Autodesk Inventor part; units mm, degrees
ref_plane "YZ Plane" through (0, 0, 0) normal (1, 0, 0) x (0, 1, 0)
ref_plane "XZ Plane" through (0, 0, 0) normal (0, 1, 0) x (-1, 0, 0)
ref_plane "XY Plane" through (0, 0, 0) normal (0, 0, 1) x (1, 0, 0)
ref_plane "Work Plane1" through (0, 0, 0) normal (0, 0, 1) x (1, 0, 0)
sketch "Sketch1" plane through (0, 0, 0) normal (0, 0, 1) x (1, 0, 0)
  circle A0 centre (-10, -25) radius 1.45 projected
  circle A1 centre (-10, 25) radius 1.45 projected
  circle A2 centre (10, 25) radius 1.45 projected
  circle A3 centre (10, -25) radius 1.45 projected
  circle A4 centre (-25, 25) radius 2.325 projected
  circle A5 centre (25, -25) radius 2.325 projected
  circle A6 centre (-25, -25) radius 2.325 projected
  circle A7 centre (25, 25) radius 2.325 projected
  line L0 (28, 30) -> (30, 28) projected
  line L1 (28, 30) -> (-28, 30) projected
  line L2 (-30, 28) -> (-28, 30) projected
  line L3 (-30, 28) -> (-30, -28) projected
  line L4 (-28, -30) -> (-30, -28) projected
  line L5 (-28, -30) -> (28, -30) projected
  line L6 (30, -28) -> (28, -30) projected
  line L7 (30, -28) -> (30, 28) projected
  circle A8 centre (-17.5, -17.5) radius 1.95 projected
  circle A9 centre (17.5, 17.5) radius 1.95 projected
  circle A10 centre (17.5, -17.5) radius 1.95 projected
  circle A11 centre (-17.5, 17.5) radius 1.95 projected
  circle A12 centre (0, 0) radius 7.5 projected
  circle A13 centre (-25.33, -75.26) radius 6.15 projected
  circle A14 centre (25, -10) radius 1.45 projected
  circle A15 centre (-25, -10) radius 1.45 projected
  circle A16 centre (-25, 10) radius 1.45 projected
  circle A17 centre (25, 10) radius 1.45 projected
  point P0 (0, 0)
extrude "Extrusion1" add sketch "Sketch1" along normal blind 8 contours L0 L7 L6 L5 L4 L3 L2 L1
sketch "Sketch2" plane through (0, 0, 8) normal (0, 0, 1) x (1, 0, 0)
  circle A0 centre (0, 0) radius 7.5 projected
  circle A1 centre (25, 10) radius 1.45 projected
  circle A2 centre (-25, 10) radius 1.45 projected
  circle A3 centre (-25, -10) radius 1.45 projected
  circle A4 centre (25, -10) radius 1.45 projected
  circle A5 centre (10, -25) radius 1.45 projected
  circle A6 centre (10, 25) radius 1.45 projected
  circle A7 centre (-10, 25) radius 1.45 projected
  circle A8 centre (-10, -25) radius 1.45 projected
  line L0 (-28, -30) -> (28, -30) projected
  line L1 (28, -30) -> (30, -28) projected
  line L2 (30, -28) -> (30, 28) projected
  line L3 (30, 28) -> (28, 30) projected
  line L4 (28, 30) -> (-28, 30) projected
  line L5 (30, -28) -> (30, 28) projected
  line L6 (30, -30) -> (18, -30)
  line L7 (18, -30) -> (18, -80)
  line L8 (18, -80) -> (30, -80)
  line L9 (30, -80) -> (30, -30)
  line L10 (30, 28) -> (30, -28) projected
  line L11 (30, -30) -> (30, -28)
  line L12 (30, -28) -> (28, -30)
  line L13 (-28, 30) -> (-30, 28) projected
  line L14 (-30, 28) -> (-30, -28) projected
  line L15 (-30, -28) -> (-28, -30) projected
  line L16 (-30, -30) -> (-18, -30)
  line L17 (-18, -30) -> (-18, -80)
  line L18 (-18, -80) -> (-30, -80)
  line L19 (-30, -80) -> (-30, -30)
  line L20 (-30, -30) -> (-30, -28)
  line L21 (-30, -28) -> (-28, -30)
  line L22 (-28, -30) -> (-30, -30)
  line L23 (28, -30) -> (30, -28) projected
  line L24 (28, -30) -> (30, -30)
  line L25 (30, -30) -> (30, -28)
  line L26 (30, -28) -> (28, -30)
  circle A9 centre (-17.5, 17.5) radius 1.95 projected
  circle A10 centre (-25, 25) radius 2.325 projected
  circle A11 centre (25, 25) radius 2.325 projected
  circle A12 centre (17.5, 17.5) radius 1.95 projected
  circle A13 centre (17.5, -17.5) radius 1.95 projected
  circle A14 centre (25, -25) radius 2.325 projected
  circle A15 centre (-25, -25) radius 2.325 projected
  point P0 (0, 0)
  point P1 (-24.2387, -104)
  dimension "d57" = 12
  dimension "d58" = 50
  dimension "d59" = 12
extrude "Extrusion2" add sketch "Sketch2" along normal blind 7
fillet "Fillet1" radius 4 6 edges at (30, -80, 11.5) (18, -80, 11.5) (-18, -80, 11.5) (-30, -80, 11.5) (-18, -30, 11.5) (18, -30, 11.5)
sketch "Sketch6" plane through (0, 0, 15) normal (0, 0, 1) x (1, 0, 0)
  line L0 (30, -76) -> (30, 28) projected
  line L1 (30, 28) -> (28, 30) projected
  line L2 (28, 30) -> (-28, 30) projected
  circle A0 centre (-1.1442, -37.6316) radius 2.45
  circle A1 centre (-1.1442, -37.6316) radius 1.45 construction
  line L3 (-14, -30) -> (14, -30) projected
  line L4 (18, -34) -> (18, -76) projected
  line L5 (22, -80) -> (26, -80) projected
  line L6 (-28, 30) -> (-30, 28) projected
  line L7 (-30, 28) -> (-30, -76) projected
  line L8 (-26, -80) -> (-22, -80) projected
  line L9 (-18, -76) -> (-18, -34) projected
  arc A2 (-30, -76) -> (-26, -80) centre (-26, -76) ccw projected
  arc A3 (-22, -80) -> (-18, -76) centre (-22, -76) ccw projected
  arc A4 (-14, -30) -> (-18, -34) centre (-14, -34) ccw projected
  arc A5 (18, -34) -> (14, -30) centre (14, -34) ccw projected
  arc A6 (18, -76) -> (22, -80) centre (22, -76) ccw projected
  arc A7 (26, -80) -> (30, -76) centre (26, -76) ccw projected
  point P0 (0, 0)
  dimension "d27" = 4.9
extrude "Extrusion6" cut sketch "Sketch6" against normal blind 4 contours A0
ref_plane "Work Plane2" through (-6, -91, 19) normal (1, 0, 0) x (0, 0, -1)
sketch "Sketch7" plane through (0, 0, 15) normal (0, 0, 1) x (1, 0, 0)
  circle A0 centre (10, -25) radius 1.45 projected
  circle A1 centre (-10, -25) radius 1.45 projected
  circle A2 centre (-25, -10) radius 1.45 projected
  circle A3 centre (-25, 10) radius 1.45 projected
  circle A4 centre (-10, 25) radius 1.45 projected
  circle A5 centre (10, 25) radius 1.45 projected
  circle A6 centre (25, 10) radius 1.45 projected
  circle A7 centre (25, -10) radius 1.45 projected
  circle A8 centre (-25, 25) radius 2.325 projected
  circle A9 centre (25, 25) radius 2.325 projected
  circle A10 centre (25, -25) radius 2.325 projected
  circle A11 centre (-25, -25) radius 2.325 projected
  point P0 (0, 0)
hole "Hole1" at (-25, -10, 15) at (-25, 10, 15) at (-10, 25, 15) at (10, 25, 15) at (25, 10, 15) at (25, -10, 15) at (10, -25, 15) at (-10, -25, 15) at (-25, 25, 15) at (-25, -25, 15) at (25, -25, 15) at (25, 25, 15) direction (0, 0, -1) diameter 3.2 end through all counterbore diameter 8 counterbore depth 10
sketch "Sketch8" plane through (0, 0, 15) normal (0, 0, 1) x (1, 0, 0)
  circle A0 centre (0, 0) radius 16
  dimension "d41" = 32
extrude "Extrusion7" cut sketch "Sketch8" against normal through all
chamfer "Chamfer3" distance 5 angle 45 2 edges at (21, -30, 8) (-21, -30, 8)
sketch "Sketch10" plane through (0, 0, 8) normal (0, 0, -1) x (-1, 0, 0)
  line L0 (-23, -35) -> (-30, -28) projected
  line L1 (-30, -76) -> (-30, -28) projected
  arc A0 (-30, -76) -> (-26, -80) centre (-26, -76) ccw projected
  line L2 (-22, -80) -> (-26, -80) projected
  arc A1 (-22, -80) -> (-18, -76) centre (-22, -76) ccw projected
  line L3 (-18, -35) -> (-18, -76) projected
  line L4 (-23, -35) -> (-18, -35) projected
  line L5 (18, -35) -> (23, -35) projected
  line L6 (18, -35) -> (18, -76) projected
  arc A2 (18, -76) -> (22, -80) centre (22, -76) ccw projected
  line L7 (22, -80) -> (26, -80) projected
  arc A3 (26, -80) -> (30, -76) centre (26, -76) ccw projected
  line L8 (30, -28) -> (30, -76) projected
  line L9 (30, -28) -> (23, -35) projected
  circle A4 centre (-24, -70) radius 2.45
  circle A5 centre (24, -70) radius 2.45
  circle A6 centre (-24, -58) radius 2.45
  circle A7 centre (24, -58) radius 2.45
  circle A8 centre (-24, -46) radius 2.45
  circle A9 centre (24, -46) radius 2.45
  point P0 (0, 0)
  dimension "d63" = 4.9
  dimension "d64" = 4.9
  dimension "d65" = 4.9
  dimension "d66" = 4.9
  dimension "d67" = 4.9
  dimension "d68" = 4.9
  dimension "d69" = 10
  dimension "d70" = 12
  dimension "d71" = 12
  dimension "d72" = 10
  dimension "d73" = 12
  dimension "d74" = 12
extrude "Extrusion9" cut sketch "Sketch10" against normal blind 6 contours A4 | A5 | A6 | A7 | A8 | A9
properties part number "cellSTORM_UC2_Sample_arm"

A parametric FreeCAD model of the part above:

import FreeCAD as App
import Part
import Sketcher


def edges_at(feature, points):
    """Names of the edges that pass closest to the given points."""
    edges = feature.Shape.Edges
    near = lambda p: min(range(len(edges)), key=lambda i: edges[i].distToShape(Part.Vertex(*p))[0])
    return sorted({f"Edge{near(p) + 1}" for p in points})


def add_polygon(sketch, points):
    """Adds a closed chain of lines whose ends are joined by coincident constraints."""
    first, n = sketch.GeometryCount, len(points)
    for a, b in zip(points, points[1:] + points[:1]):
        sketch.addGeometry(Part.LineSegment(App.Vector(*a, 0), App.Vector(*b, 0)), False)
    for i in range(n):
        sketch.addConstraint(Sketcher.Constraint("Coincident", first + i, 2, first + (i + 1) % n, 1))

doc = App.newDocument("Part")
body = doc.addObject("PartDesign::Body", "Body")

# Sketch on XY plane
sketch1 = body.newObject("Sketcher::SketchObject", "Sketch")
sketch1.AttachmentSupport = (doc.getObject("XY_Plane"), [""])
sketch1.MapMode = "FlatFace"
add_polygon(sketch1, [(30, 28), (28, 30), (-28, 30), (-30, 28), (-30, -28), (-28, -30), (28, -30), (30, -28)])  # lines 0-7
sketch1.addGeometry(Part.Circle(App.Vector(-25, -25, 0), App.Vector(0, 0, 1), 2.325), False)  # 8
sketch1.addGeometry(Part.Circle(App.Vector(-17.5, -17.5, 0), App.Vector(0, 0, 1), 1.95), False)  # 9
sketch1.addGeometry(Part.Circle(App.Vector(-25, -10, 0), App.Vector(0, 0, 1), 1.45), False)  # 10
sketch1.addGeometry(Part.Circle(App.Vector(-10, -25, 0), App.Vector(0, 0, 1), 1.45), False)  # 11
sketch1.addGeometry(Part.Circle(App.Vector(-25, 10, 0), App.Vector(0, 0, 1), 1.45), False)  # 12
sketch1.addGeometry(Part.Circle(App.Vector(-25, 25, 0), App.Vector(0, 0, 1), 2.325), False)  # 13
sketch1.addGeometry(Part.Circle(App.Vector(-17.5, 17.5, 0), App.Vector(0, 0, 1), 1.95), False)  # 14
sketch1.addGeometry(Part.Circle(App.Vector(-10, 25, 0), App.Vector(0, 0, 1), 1.45), False)  # 15
sketch1.addGeometry(Part.Circle(App.Vector(10, -25, 0), App.Vector(0, 0, 1), 1.45), False)  # 16
sketch1.addGeometry(Part.Circle(App.Vector(0, 0, 0), App.Vector(0, 0, 1), 7.5), False)  # 17
sketch1.addGeometry(Part.Circle(App.Vector(17.5, -17.5, 0), App.Vector(0, 0, 1), 1.95), False)  # 18
sketch1.addGeometry(Part.Circle(App.Vector(25, -25, 0), App.Vector(0, 0, 1), 2.325), False)  # 19
sketch1.addGeometry(Part.Circle(App.Vector(25, -10, 0), App.Vector(0, 0, 1), 1.45), False)  # 20
sketch1.addGeometry(Part.Circle(App.Vector(10, 25, 0), App.Vector(0, 0, 1), 1.45), False)  # 21
sketch1.addGeometry(Part.Circle(App.Vector(25, 10, 0), App.Vector(0, 0, 1), 1.45), False)  # 22
sketch1.addGeometry(Part.Circle(App.Vector(17.5, 17.5, 0), App.Vector(0, 0, 1), 1.95), False)  # 23
sketch1.addGeometry(Part.Circle(App.Vector(25, 25, 0), App.Vector(0, 0, 1), 2.325), False)  # 24
sketch1.addConstraint([
    Sketcher.Constraint("Horizontal", 1),
    Sketcher.Constraint("Vertical", 3),
    Sketcher.Constraint("Horizontal", 5),
    Sketcher.Constraint("Vertical", 7),
    Sketcher.Constraint("Coincident", 17, 3, -1, 1),
    Sketcher.Constraint("Equal", 10, 11),
    Sketcher.Constraint("Equal", 11, 12),
    Sketcher.Constraint("Equal", 8, 13),
    Sketcher.Constraint("Equal", 9, 14),
    Sketcher.Constraint("Equal", 12, 15),
    Sketcher.Constraint("Equal", 15, 16),
    Sketcher.Constraint("Equal", 14, 18),
    Sketcher.Constraint("Equal", 13, 19),
    Sketcher.Constraint("Equal", 16, 20),
    Sketcher.Constraint("Equal", 20, 21),
    Sketcher.Constraint("Equal", 21, 22),
    Sketcher.Constraint("Equal", 18, 23),
    Sketcher.Constraint("Equal", 19, 24),
    Sketcher.Constraint("Symmetric", 15, 3, 16, 3, -1, 1),
    Sketcher.Constraint("Symmetric", 14, 3, 18, 3, -1, 1),
    Sketcher.Constraint("Symmetric", 13, 3, 19, 3, -1, 1),
    Sketcher.Constraint("Symmetric", 12, 3, 20, 3, -1, 1),
    Sketcher.Constraint("Symmetric", 11, 3, 21, 3, -1, 1),
    Sketcher.Constraint("Symmetric", 10, 3, 22, 3, -1, 1),
    Sketcher.Constraint("Symmetric", 9, 3, 23, 3, -1, 1),
    Sketcher.Constraint("Symmetric", 8, 3, 24, 3, -1, 1),
    Sketcher.Constraint("Symmetric", 0, 2, 4, 2, -1, 1),
    Sketcher.Constraint("Symmetric", 2, 2, 6, 2, -1, 1),
    Sketcher.Constraint("Symmetric", 11, 3, 16, 3, -2),
    Sketcher.Constraint("Symmetric", 9, 3, 18, 3, -2),
    Sketcher.Constraint("Symmetric", 8, 3, 19, 3, -2),
    Sketcher.Constraint("Symmetric", 10, 3, 20, 3, -2),
    Sketcher.Constraint("Perpendicular", 0, 2),
    Sketcher.Constraint("Perpendicular", 2, 4),
    Sketcher.Constraint("Perpendicular", 4, 6),
    Sketcher.Constraint("Horizontal", 8, 3, 11, 3),
    Sketcher.Constraint("Horizontal", 3, 2, 6, 2),
    Sketcher.Constraint("Vertical", 8, 3, 10, 3),
    Sketcher.Constraint("Vertical", 1, 2, 4, 2),
    Sketcher.Constraint("Equal", 5, 3),
    Sketcher.Constraint("Diameter", 17, 15.0),
    Sketcher.Constraint("Diameter", 9, 3.9),
    Sketcher.Constraint("Diameter", 10, 2.9),
    Sketcher.Constraint("Diameter", 8, 4.65),
    Sketcher.Constraint("DistanceX", 1, 2, 1, 1, 56.0),
    Sketcher.Constraint("DistanceX", 8, 3, -1, 1, 25.0),
    Sketcher.Constraint("DistanceY", 8, 3, -1, 1, 25.0),
    Sketcher.Constraint("DistanceY", 10, 3, -1, 1, 10.0),
    Sketcher.Constraint("DistanceX", 11, 3, -1, 1, 10.0),
    Sketcher.Constraint("DistanceY", -1, 1, 0, 2, 30.0),
    Sketcher.Constraint("DistanceY", 9, 3, 14, 3, 35.0),
    Sketcher.Constraint("DistanceX", 9, 3, 18, 3, 35.0),
])
pad1 = body.newObject("PartDesign::Pad", "Pad")
pad1.Profile = sketch1
pad1.Length = 8

# Sketch on XY plane
sketch2 = body.newObject("Sketcher::SketchObject", "Sketch001")
sketch2.AttachmentSupport = (doc.getObject("XY_Plane"), [""])
sketch2.MapMode = "FlatFace"
sketch2.AttachmentOffset = App.Placement(App.Vector(0, 0, 8), App.Rotation())
add_polygon(sketch2, [(-30, 28), (-30, -80), (-18, -80), (-18, -30), (18, -30), (18, -80), (30, -80), (30, 28), (28, 30), (-28, 30)])  # lines 0-9
sketch2.addGeometry(Part.Circle(App.Vector(-25, -25, 0), App.Vector(0, 0, 1), 2.325), False)  # 10
sketch2.addGeometry(Part.Circle(App.Vector(-25, -10, 0), App.Vector(0, 0, 1), 1.45), False)  # 11
sketch2.addGeometry(Part.Circle(App.Vector(-10, -25, 0), App.Vector(0, 0, 1), 1.45), False)  # 12
sketch2.addGeometry(Part.Circle(App.Vector(-25, 10, 0), App.Vector(0, 0, 1), 1.45), False)  # 13
sketch2.addGeometry(Part.Circle(App.Vector(-25, 25, 0), App.Vector(0, 0, 1), 2.325), False)  # 14
sketch2.addGeometry(Part.Circle(App.Vector(-17.5, 17.5, 0), App.Vector(0, 0, 1), 1.95), False)  # 15
sketch2.addGeometry(Part.Circle(App.Vector(-10, 25, 0), App.Vector(0, 0, 1), 1.45), False)  # 16
sketch2.addGeometry(Part.Circle(App.Vector(10, -25, 0), App.Vector(0, 0, 1), 1.45), False)  # 17
sketch2.addGeometry(Part.Circle(App.Vector(0, 0, 0), App.Vector(0, 0, 1), 7.5), False)  # 18
sketch2.addGeometry(Part.Circle(App.Vector(17.5, -17.5, 0), App.Vector(0, 0, 1), 1.95), False)  # 19
sketch2.addGeometry(Part.Circle(App.Vector(25, -25, 0), App.Vector(0, 0, 1), 2.325), False)  # 20
sketch2.addGeometry(Part.Circle(App.Vector(25, -10, 0), App.Vector(0, 0, 1), 1.45), False)  # 21
sketch2.addGeometry(Part.Circle(App.Vector(10, 25, 0), App.Vector(0, 0, 1), 1.45), False)  # 22
sketch2.addGeometry(Part.Circle(App.Vector(25, 10, 0), App.Vector(0, 0, 1), 1.45), False)  # 23
sketch2.addGeometry(Part.Circle(App.Vector(17.5, 17.5, 0), App.Vector(0, 0, 1), 1.95), False)  # 24
sketch2.addGeometry(Part.Circle(App.Vector(25, 25, 0), App.Vector(0, 0, 1), 2.325), False)  # 25
sketch2.addConstraint([
    Sketcher.Constraint("Vertical", 0),
    Sketcher.Constraint("Horizontal", 1),
    Sketcher.Constraint("Vertical", 2),
    Sketcher.Constraint("Horizontal", 3),
    Sketcher.Constraint("Vertical", 4),
    Sketcher.Constraint("Horizontal", 5),
    Sketcher.Constraint("Vertical", 6),
    Sketcher.Constraint("Horizontal", 8),
    Sketcher.Constraint("Coincident", 18, 3, -1, 1),
    Sketcher.Constraint("Equal", 11, 12),
    Sketcher.Constraint("Equal", 12, 13),
    Sketcher.Constraint("Equal", 10, 14),
    Sketcher.Constraint("Equal", 13, 16),
    Sketcher.Constraint("Equal", 16, 17),
    Sketcher.Constraint("Equal", 15, 19),
    Sketcher.Constraint("Equal", 14, 20),
    Sketcher.Constraint("Equal", 17, 21),
    Sketcher.Constraint("Equal", 21, 22),
    Sketcher.Constraint("Equal", 22, 23),
    Sketcher.Constraint("Equal", 19, 24),
    Sketcher.Constraint("Equal", 20, 25),
    Sketcher.Constraint("Symmetric", 16, 3, 17, 3, -1, 1),
    Sketcher.Constraint("Symmetric", 15, 3, 19, 3, -1, 1),
    Sketcher.Constraint("Symmetric", 14, 3, 20, 3, -1, 1),
    Sketcher.Constraint("Symmetric", 13, 3, 21, 3, -1, 1),
    Sketcher.Constraint("Symmetric", 12, 3, 22, 3, -1, 1),
    Sketcher.Constraint("Symmetric", 11, 3, 23, 3, -1, 1),
    Sketcher.Constraint("Symmetric", 10, 3, 25, 3, -1, 1),
    Sketcher.Constraint("Symmetric", 12, 3, 17, 3, -2),
    Sketcher.Constraint("Symmetric", 10, 3, 20, 3, -2),
    Sketcher.Constraint("Symmetric", 11, 3, 21, 3, -2),
    Sketcher.Constraint("Symmetric", 15, 3, 24, 3, -2),
    Sketcher.Constraint("Symmetric", 1, 2, 4, 2, -2),
    Sketcher.Constraint("Symmetric", 6, 2, 9, 2, -2),
    Sketcher.Constraint("Perpendicular", 7, 9),
    Sketcher.Constraint("Horizontal", 10, 3, 12, 3),
    Sketcher.Constraint("Vertical", 10, 3, 11, 3),
    Sketcher.Constraint("Equal", 7, 9),
    Sketcher.Constraint("DistanceX", 1, 1, 1, 2, 12.0),
    Sketcher.Constraint("DistanceY", 2, 1, 2, 2, 50.0),
    Sketcher.Constraint("Diameter", 18, 15.0),
    Sketcher.Constraint("DistanceY", 10, 3, 14, 3, 50.0),
    Sketcher.Constraint("DistanceX", 10, 3, 20, 3, 50.0),
    Sketcher.Constraint("Diameter", 11, 2.9),
    Sketcher.Constraint("Diameter", 15, 3.9),
    Sketcher.Constraint("Diameter", 10, 4.65),
    Sketcher.Constraint("DistanceX", 3, 1, 3, 2, 36.0),
    Sketcher.Constraint("DistanceX", 8, 2, 8, 1, 56.0),
    Sketcher.Constraint("DistanceY", 0, 2, 0, 1, 108.0),
    Sketcher.Constraint("DistanceY", 11, 3, -1, 1, 10.0),
    Sketcher.Constraint("DistanceX", 12, 3, -1, 1, 10.0),
    Sketcher.Constraint("DistanceY", 0, 2, -1, 1, 80.0),
    Sketcher.Constraint("DistanceX", 15, 3, -1, 1, 17.5),
    Sketcher.Constraint("DistanceY", -1, 1, 15, 3, 17.5),
])
pad2 = body.newObject("PartDesign::Pad", "Pad001")
pad2.Profile = sketch2
pad2.Length = 7
doc.recompute()

fillet = body.newObject("PartDesign::Fillet", "Fillet")
fillet.Base = (pad2, edges_at(pad2, [
    (30, -80, 11.5),
    (18, -80, 11.5),
    (-18, -80, 11.5),
    (-30, -80, 11.5),
    (-18, -30, 11.5),
    (18, -30, 11.5),
]))
fillet.Radius = 4

# Sketch on XY plane
sketch3 = body.newObject("Sketcher::SketchObject", "Sketch002")
sketch3.AttachmentSupport = (doc.getObject("XY_Plane"), [""])
sketch3.MapMode = "FlatFace"
sketch3.AttachmentOffset = App.Placement(App.Vector(0, 0, 15), App.Rotation())
sketch3.addGeometry(Part.Circle(App.Vector(-1.1442, -37.6316, 0), App.Vector(0, 0, 1), 2.45), False)
sketch3.addConstraint([
    Sketcher.Constraint("Diameter", 0, 4.9),
    Sketcher.Constraint("DistanceX", 0, 3, -1, 1, 1.1442),
    Sketcher.Constraint("DistanceY", 0, 3, -1, 1, 37.6316),
])
pocket1 = body.newObject("PartDesign::Pocket", "Pocket")
pocket1.Profile = sketch3
pocket1.Length = 4

# Sketch on XY plane
sketch4 = body.newObject("Sketcher::SketchObject", "Sketch003")
sketch4.AttachmentSupport = (doc.getObject("XY_Plane"), [""])
sketch4.MapMode = "FlatFace"
sketch4.AttachmentOffset = App.Placement(App.Vector(0, 0, 15), App.Rotation())
sketch4.addGeometry([
    Part.Circle(App.Vector(-25, -10, 0), App.Vector(0, 0, 1), 1.6),  # 0
    Part.Circle(App.Vector(-25, 10, 0), App.Vector(0, 0, 1), 1.6),  # 1
    Part.Circle(App.Vector(-10, 25, 0), App.Vector(0, 0, 1), 1.6),  # 2
    Part.Circle(App.Vector(10, 25, 0), App.Vector(0, 0, 1), 1.6),  # 3
    Part.Circle(App.Vector(25, 10, 0), App.Vector(0, 0, 1), 1.6),  # 4
    Part.Circle(App.Vector(25, -10, 0), App.Vector(0, 0, 1), 1.6),  # 5
    Part.Circle(App.Vector(10, -25, 0), App.Vector(0, 0, 1), 1.6),  # 6
    Part.Circle(App.Vector(-10, -25, 0), App.Vector(0, 0, 1), 1.6),  # 7
    Part.Circle(App.Vector(-25, 25, 0), App.Vector(0, 0, 1), 1.6),  # 8
    Part.Circle(App.Vector(-25, -25, 0), App.Vector(0, 0, 1), 1.6),  # 9
    Part.Circle(App.Vector(25, -25, 0), App.Vector(0, 0, 1), 1.6),  # 10
    Part.Circle(App.Vector(25, 25, 0), App.Vector(0, 0, 1), 1.6),  # 11
], False)
sketch4.addConstraint([
    Sketcher.Constraint("Equal", 0, 1),
    Sketcher.Constraint("Equal", 1, 2),
    Sketcher.Constraint("Equal", 2, 3),
    Sketcher.Constraint("Equal", 3, 4),
    Sketcher.Constraint("Equal", 4, 5),
    Sketcher.Constraint("Equal", 5, 6),
    Sketcher.Constraint("Equal", 6, 7),
    Sketcher.Constraint("Equal", 7, 8),
    Sketcher.Constraint("Equal", 8, 9),
    Sketcher.Constraint("Equal", 9, 10),
    Sketcher.Constraint("Equal", 10, 11),
    Sketcher.Constraint("Symmetric", 0, 3, 4, 3, -1, 1),
    Sketcher.Constraint("Symmetric", 1, 3, 5, 3, -1, 1),
    Sketcher.Constraint("Symmetric", 2, 3, 6, 3, -1, 1),
    Sketcher.Constraint("Symmetric", 3, 3, 7, 3, -1, 1),
    Sketcher.Constraint("Symmetric", 8, 3, 10, 3, -1, 1),
    Sketcher.Constraint("Symmetric", 9, 3, 11, 3, -1, 1),
    Sketcher.Constraint("Symmetric", 2, 3, 3, 3, -2),
    Sketcher.Constraint("Symmetric", 1, 3, 4, 3, -2),
    Sketcher.Constraint("Symmetric", 9, 3, 10, 3, -2),
    Sketcher.Constraint("Horizontal", 3, 3, 8, 3),
    Sketcher.Constraint("Vertical", 1, 3, 8, 3),
    Sketcher.Constraint("Diameter", 0, 3.2),
    Sketcher.Constraint("DistanceX", 0, 3, -1, 1, 25.0),
    Sketcher.Constraint("DistanceY", 0, 3, -1, 1, 10.0),
    Sketcher.Constraint("DistanceX", 2, 3, -1, 1, 10.0),
    Sketcher.Constraint("DistanceY", -1, 1, 2, 3, 25.0),
])
doc.recompute()
hole = body.newObject("PartDesign::Hole", "Hole")
hole.Profile = sketch4
hole.ThreadType = "None"
hole.Diameter = 3.2
hole.DepthType = "ThroughAll"
hole.HoleCutType = "Counterbore"
hole.HoleCutDiameter = 8
hole.HoleCutDepth = 10

# Sketch on XY plane
sketch5 = body.newObject("Sketcher::SketchObject", "Sketch004")
sketch5.AttachmentSupport = (doc.getObject("XY_Plane"), [""])
sketch5.MapMode = "FlatFace"
sketch5.AttachmentOffset = App.Placement(App.Vector(0, 0, 15), App.Rotation())
sketch5.addGeometry(Part.Circle(App.Vector(0, 0, 0), App.Vector(0, 0, 1), 16), False)
sketch5.addConstraint([
    Sketcher.Constraint("Coincident", 0, 3, -1, 1),
    Sketcher.Constraint("Diameter", 0, 32.0),
])
pocket2 = body.newObject("PartDesign::Pocket", "Pocket001")
pocket2.Profile = sketch5
pocket2.Type = "ThroughAll"
doc.recompute()

chamfer = body.newObject("PartDesign::Chamfer", "Chamfer")
chamfer.Base = (pocket2, edges_at(pocket2, [(21, -30, 8), (-21, -30, 8)]))
chamfer.Size = 5

# Sketch on XY plane
sketch6 = body.newObject("Sketcher::SketchObject", "Sketch005")
sketch6.AttachmentSupport = (doc.getObject("XY_Plane"), [""])
sketch6.MapMode = "FlatFace"
sketch6.AttachmentOffset = App.Placement(App.Vector(0, 0, 8), App.Rotation())
sketch6.addGeometry([
    Part.Circle(App.Vector(24, -70, 0), App.Vector(0, 0, 1), 2.45),  # 0
    Part.Circle(App.Vector(-24, -70, 0), App.Vector(0, 0, 1), 2.45),  # 1
    Part.Circle(App.Vector(24, -58, 0), App.Vector(0, 0, 1), 2.45),  # 2
    Part.Circle(App.Vector(-24, -58, 0), App.Vector(0, 0, 1), 2.45),  # 3
    Part.Circle(App.Vector(24, -46, 0), App.Vector(0, 0, 1), 2.45),  # 4
    Part.Circle(App.Vector(-24, -46, 0), App.Vector(0, 0, 1), 2.45),  # 5
], False)
sketch6.addConstraint([
    Sketcher.Constraint("Equal", 0, 1),
    Sketcher.Constraint("Equal", 1, 2),
    Sketcher.Constraint("Equal", 2, 3),
    Sketcher.Constraint("Equal", 3, 4),
    Sketcher.Constraint("Equal", 4, 5),
    Sketcher.Constraint("Symmetric", 0, 3, 1, 3, -2),
    Sketcher.Constraint("Symmetric", 2, 3, 3, 3, -2),
    Sketcher.Constraint("Symmetric", 4, 3, 5, 3, -2),
    Sketcher.Constraint("Vertical", 0, 3, 2, 3),
    Sketcher.Constraint("Vertical", 2, 3, 4, 3),
    Sketcher.Constraint("Diameter", 0, 4.9),
    Sketcher.Constraint("DistanceY", 0, 3, 2, 3, 12.0),
    Sketcher.Constraint("DistanceY", 2, 3, 4, 3, 12.0),
    Sketcher.Constraint("DistanceX", -1, 1, 0, 3, 24.0),
    Sketcher.Constraint("DistanceY", 0, 3, -1, 1, 70.0),
])
pocket3 = body.newObject("PartDesign::Pocket", "Pocket002")
pocket3.Profile = sketch6
pocket3.Length = 6
pocket3.Reversed = True

doc.recompute()
